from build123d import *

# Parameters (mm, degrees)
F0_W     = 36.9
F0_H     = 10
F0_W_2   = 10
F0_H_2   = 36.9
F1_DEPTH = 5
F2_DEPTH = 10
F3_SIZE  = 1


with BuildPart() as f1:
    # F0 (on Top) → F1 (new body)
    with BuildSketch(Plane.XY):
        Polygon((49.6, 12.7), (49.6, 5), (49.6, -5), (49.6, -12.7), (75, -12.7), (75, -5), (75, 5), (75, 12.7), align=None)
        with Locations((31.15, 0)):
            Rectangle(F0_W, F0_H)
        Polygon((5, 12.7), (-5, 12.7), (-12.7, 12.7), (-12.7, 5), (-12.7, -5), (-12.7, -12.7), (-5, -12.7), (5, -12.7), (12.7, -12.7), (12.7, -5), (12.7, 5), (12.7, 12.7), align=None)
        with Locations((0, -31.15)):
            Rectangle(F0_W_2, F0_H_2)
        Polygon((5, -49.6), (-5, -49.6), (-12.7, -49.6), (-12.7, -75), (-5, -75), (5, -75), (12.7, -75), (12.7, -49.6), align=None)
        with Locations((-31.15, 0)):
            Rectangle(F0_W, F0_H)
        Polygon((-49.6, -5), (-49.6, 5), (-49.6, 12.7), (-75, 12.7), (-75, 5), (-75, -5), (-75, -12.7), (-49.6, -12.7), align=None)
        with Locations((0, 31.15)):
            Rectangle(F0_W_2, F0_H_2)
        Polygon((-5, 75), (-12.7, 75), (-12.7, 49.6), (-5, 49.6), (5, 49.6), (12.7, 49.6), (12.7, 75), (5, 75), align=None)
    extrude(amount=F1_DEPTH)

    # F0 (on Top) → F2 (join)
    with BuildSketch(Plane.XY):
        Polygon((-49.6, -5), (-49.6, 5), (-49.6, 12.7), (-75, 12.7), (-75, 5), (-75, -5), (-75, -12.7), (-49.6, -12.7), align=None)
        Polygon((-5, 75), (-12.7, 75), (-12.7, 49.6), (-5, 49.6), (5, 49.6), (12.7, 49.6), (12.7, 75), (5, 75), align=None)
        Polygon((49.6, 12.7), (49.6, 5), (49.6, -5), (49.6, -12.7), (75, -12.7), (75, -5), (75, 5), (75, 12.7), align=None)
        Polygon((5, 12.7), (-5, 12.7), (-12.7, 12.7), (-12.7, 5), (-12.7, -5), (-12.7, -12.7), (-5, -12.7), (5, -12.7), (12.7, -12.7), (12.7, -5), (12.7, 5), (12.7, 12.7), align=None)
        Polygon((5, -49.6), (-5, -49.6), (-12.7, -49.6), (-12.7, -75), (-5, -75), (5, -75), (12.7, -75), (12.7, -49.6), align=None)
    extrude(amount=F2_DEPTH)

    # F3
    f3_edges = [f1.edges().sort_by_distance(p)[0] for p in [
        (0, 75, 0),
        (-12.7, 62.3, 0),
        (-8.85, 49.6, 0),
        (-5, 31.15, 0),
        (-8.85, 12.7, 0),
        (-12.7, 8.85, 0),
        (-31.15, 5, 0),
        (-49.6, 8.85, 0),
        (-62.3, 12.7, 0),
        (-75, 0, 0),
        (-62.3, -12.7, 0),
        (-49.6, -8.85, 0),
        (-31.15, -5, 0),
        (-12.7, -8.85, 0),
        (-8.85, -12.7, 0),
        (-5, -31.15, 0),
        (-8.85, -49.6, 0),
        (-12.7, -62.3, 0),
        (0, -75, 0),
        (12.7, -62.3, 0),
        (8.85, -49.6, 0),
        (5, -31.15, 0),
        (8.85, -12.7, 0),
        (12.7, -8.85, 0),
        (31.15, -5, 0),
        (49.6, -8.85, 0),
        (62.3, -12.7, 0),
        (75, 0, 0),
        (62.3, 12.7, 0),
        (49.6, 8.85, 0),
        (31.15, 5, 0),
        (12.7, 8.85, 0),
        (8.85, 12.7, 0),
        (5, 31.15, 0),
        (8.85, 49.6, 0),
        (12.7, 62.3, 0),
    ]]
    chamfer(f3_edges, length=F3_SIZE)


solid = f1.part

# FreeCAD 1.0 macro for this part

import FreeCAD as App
import Part
import Sketcher

V = App.Vector


def edges_at(feature, points):
    """Names of the edges that pass closest to the given points."""
    edges = feature.Shape.Edges
    near = lambda p: min(range(len(edges)), key=lambda i: edges[i].distToShape(Part.Vertex(*p))[0])
    return sorted({f"Edge{near(p) + 1}" for p in points})

doc = App.newDocument("Part")
params = doc.addObject("Spreadsheet::Sheet", "Params")
for row, (alias, value) in enumerate([
    ("sketch1_width", "36.9 mm"),
    ("sketch1_width2", "7.7 mm"),
    ("sketch1_width3", "25.4 mm"),
    ("pad1_length", "5 mm"),
    ("sketch2_width", "25.4 mm"),
    ("pad2_length", "10 mm"),
    ("chamfer_size", "1 mm"),
], start=1):
    params.set(f"A{row}", alias)
    params.set(f"B{row}", "=" + value)
    params.setAlias(f"B{row}", alias)

body = doc.addObject("PartDesign::Body", "Body")

# Sketch on XY plane
sketch1 = body.newObject("Sketcher::SketchObject", "Sketch")
sketch1.AttachmentSupport = (doc.getObject("XY_Plane"), [""])
sketch1.MapMode = "FlatFace"
sketch1.addGeometry(Part.LineSegment(V(49.6, 12.7, 0), V(49.6, 5, 0)), False)
sketch1.addGeometry(Part.LineSegment(V(49.6, 5, 0), V(12.7, 5, 0)), False)
sketch1.addGeometry(Part.LineSegment(V(12.7, 5, 0), V(12.7, 12.7, 0)), False)
sketch1.addGeometry(Part.LineSegment(V(12.7, 12.7, 0), V(5, 12.7, 0)), False)
sketch1.addGeometry(Part.LineSegment(V(5, 12.7, 0), V(5, 49.6, 0)), False)
sketch1.addGeometry(Part.LineSegment(V(5, 49.6, 0), V(12.7, 49.6, 0)), False)
sketch1.addGeometry(Part.LineSegment(V(12.7, 49.6, 0), V(12.7, 75, 0)), False)
sketch1.addGeometry(Part.LineSegment(V(12.7, 75, 0), V(-12.7, 75, 0)), False)
sketch1.addGeometry(Part.LineSegment(V(-12.7, 75, 0), V(-12.7, 49.6, 0)), False)
sketch1.addGeometry(Part.LineSegment(V(-12.7, 49.6, 0), V(-5, 49.6, 0)), False)
sketch1.addGeometry(Part.LineSegment(V(-5, 49.6, 0), V(-5, 12.7, 0)), False)
sketch1.addGeometry(Part.LineSegment(V(-5, 12.7, 0), V(-12.7, 12.7, 0)), False)
sketch1.addGeometry(Part.LineSegment(V(-12.7, 12.7, 0), V(-12.7, 5, 0)), False)
sketch1.addGeometry(Part.LineSegment(V(-12.7, 5, 0), V(-49.6, 5, 0)), False)
sketch1.addGeometry(Part.LineSegment(V(-49.6, 5, 0), V(-49.6, 12.7, 0)), False)
sketch1.addGeometry(Part.LineSegment(V(-49.6, 12.7, 0), V(-75, 12.7, 0)), False)
sketch1.addGeometry(Part.LineSegment(V(-75, 12.7, 0), V(-75, -12.7, 0)), False)
sketch1.addGeometry(Part.LineSegment(V(-75, -12.7, 0), V(-49.6, -12.7, 0)), False)
sketch1.addGeometry(Part.LineSegment(V(-49.6, -12.7, 0), V(-49.6, -5, 0)), False)
sketch1.addGeometry(Part.LineSegment(V(-49.6, -5, 0), V(-12.7, -5, 0)), False)
sketch1.addGeometry(Part.LineSegment(V(-12.7, -5, 0), V(-12.7, -12.7, 0)), False)
sketch1.addGeometry(Part.LineSegment(V(-12.7, -12.7, 0), V(-5, -12.7, 0)), False)
sketch1.addGeometry(Part.LineSegment(V(-5, -12.7, 0), V(-5, -49.6, 0)), False)
sketch1.addGeometry(Part.LineSegment(V(-5, -49.6, 0), V(-12.7, -49.6, 0)), False)
sketch1.addGeometry(Part.LineSegment(V(-12.7, -49.6, 0), V(-12.7, -75, 0)), False)
sketch1.addGeometry(Part.LineSegment(V(-12.7, -75, 0), V(12.7, -75, 0)), False)
sketch1.addGeometry(Part.LineSegment(V(12.7, -75, 0), V(12.7, -49.6, 0)), False)
sketch1.addGeometry(Part.LineSegment(V(12.7, -49.6, 0), V(5, -49.6, 0)), False)
sketch1.addGeometry(Part.LineSegment(V(5, -49.6, 0), V(5, -12.7, 0)), False)
sketch1.addGeometry(Part.LineSegment(V(5, -12.7, 0), V(12.7, -12.7, 0)), False)
sketch1.addGeometry(Part.LineSegment(V(12.7, -12.7, 0), V(12.7, -5, 0)), False)
sketch1.addGeometry(Part.LineSegment(V(12.7, -5, 0), V(49.6, -5, 0)), False)
sketch1.addGeometry(Part.LineSegment(V(49.6, -5, 0), V(49.6, -12.7, 0)), False)
sketch1.addGeometry(Part.LineSegment(V(49.6, -12.7, 0), V(75, -12.7, 0)), False)
sketch1.addGeometry(Part.LineSegment(V(75, -12.7, 0), V(75, 12.7, 0)), False)
sketch1.addGeometry(Part.LineSegment(V(75, 12.7, 0), V(49.6, 12.7, 0)), False)
sketch1.addConstraint(Sketcher.Constraint("Coincident", 0, 2, 1, 1))
sketch1.addConstraint(Sketcher.Constraint("Coincident", 1, 2, 2, 1))
sketch1.addConstraint(Sketcher.Constraint("Coincident", 2, 2, 3, 1))
sketch1.addConstraint(Sketcher.Constraint("Coincident", 3, 2, 4, 1))
sketch1.addConstraint(Sketcher.Constraint("Coincident", 4, 2, 5, 1))
sketch1.addConstraint(Sketcher.Constraint("Coincident", 5, 2, 6, 1))
sketch1.addConstraint(Sketcher.Constraint("Coincident", 6, 2, 7, 1))
sketch1.addConstraint(Sketcher.Constraint("Coincident", 7, 2, 8, 1))
sketch1.addConstraint(Sketcher.Constraint("Coincident", 8, 2, 9, 1))
sketch1.addConstraint(Sketcher.Constraint("Coincident", 9, 2, 10, 1))
sketch1.addConstraint(Sketcher.Constraint("Coincident", 10, 2, 11, 1))
sketch1.addConstraint(Sketcher.Constraint("Coincident", 11, 2, 12, 1))
sketch1.addConstraint(Sketcher.Constraint("Coincident", 12, 2, 13, 1))
sketch1.addConstraint(Sketcher.Constraint("Coincident", 13, 2, 14, 1))
sketch1.addConstraint(Sketcher.Constraint("Coincident", 14, 2, 15, 1))
sketch1.addConstraint(Sketcher.Constraint("Coincident", 15, 2, 16, 1))
sketch1.addConstraint(Sketcher.Constraint("Coincident", 16, 2, 17, 1))
sketch1.addConstraint(Sketcher.Constraint("Coincident", 17, 2, 18, 1))
sketch1.addConstraint(Sketcher.Constraint("Coincident", 18, 2, 19, 1))
sketch1.addConstraint(Sketcher.Constraint("Coincident", 19, 2, 20, 1))
sketch1.addConstraint(Sketcher.Constraint("Coincident", 20, 2, 21, 1))
sketch1.addConstraint(Sketcher.Constraint("Coincident", 21, 2, 22, 1))
sketch1.addConstraint(Sketcher.Constraint("Coincident", 22, 2, 23, 1))
sketch1.addConstraint(Sketcher.Constraint("Coincident", 23, 2, 24, 1))
sketch1.addConstraint(Sketcher.Constraint("Coincident", 24, 2, 25, 1))
sketch1.addConstraint(Sketcher.Constraint("Coincident", 25, 2, 26, 1))
sketch1.addConstraint(Sketcher.Constraint("Coincident", 26, 2, 27, 1))
sketch1.addConstraint(Sketcher.Constraint("Coincident", 27, 2, 28, 1))
sketch1.addConstraint(Sketcher.Constraint("Coincident", 28, 2, 29, 1))
sketch1.addConstraint(Sketcher.Constraint("Coincident", 29, 2, 30, 1))
sketch1.addConstraint(Sketcher.Constraint("Coincident", 30, 2, 31, 1))
sketch1.addConstraint(Sketcher.Constraint("Coincident", 31, 2, 32, 1))
sketch1.addConstraint(Sketcher.Constraint("Coincident", 32, 2, 33, 1))
sketch1.addConstraint(Sketcher.Constraint("Coincident", 33, 2, 34, 1))
sketch1.addConstraint(Sketcher.Constraint("Coincident", 34, 2, 35, 1))
sketch1.addConstraint(Sketcher.Constraint("Coincident", 35, 2, 0, 1))
sketch1.addConstraint(Sketcher.Constraint("Vertical", 0))
sketch1.addConstraint(Sketcher.Constraint("Horizontal", 1))
sketch1.addConstraint(Sketcher.Constraint("Vertical", 2))
sketch1.addConstraint(Sketcher.Constraint("Horizontal", 3))
sketch1.addConstraint(Sketcher.Constraint("Vertical", 4))
sketch1.addConstraint(Sketcher.Constraint("Horizontal", 5))
sketch1.addConstraint(Sketcher.Constraint("Vertical", 6))
sketch1.addConstraint(Sketcher.Constraint("Horizontal", 7))
sketch1.addConstraint(Sketcher.Constraint("Vertical", 8))
sketch1.addConstraint(Sketcher.Constraint("Horizontal", 9))
sketch1.addConstraint(Sketcher.Constraint("Vertical", 10))
sketch1.addConstraint(Sketcher.Constraint("Horizontal", 11))
sketch1.addConstraint(Sketcher.Constraint("Vertical", 12))
sketch1.addConstraint(Sketcher.Constraint("Horizontal", 13))
sketch1.addConstraint(Sketcher.Constraint("Vertical", 14))
sketch1.addConstraint(Sketcher.Constraint("Horizontal", 15))
sketch1.addConstraint(Sketcher.Constraint("Vertical", 16))
sketch1.addConstraint(Sketcher.Constraint("Horizontal", 17))
sketch1.addConstraint(Sketcher.Constraint("Vertical", 18))
sketch1.addConstraint(Sketcher.Constraint("Horizontal", 19))
sketch1.addConstraint(Sketcher.Constraint("Vertical", 20))
sketch1.addConstraint(Sketcher.Constraint("Horizontal", 21))
sketch1.addConstraint(Sketcher.Constraint("Vertical", 22))
sketch1.addConstraint(Sketcher.Constraint("Horizontal", 23))
sketch1.addConstraint(Sketcher.Constraint("Vertical", 24))
sketch1.addConstraint(Sketcher.Constraint("Horizontal", 25))
sketch1.addConstraint(Sketcher.Constraint("Vertical", 26))
sketch1.addConstraint(Sketcher.Constraint("Horizontal", 27))
sketch1.addConstraint(Sketcher.Constraint("Vertical", 28))
sketch1.addConstraint(Sketcher.Constraint("Horizontal", 29))
sketch1.addConstraint(Sketcher.Constraint("Vertical", 30))
sketch1.addConstraint(Sketcher.Constraint("Horizontal", 31))
sketch1.addConstraint(Sketcher.Constraint("Vertical", 32))
sketch1.addConstraint(Sketcher.Constraint("Horizontal", 33))
sketch1.addConstraint(Sketcher.Constraint("Vertical", 34))
sketch1.addConstraint(Sketcher.Constraint("Horizontal", 35))
sketch1.addConstraint(Sketcher.Constraint("Symmetric", 0, 2, 18, 2, -1, 1))
sketch1.addConstraint(Sketcher.Constraint("Symmetric", 2, 2, 20, 2, -1, 1))
sketch1.addConstraint(Sketcher.Constraint("Symmetric", 4, 2, 22, 2, -1, 1))
sketch1.addConstraint(Sketcher.Constraint("Symmetric", 6, 2, 24, 2, -1, 1))
sketch1.addConstraint(Sketcher.Constraint("Symmetric", 8, 2, 26, 2, -1, 1))
sketch1.addConstraint(Sketcher.Constraint("Symmetric", 10, 2, 28, 2, -1, 1))
sketch1.addConstraint(Sketcher.Constraint("Symmetric", 12, 2, 30, 2, -1, 1))
sketch1.addConstraint(Sketcher.Constraint("Symmetric", 14, 2, 32, 2, -1, 1))
sketch1.addConstraint(Sketcher.Constraint("Symmetric", 16, 2, 34, 2, -1, 1))
sketch1.addConstraint(Sketcher.Constraint("Symmetric", 5, 2, 8, 2, -2))
sketch1.addConstraint(Sketcher.Constraint("Symmetric", 3, 2, 10, 2, -2))
sketch1.addConstraint(Sketcher.Constraint("Symmetric", 1, 2, 12, 2, -2))
sketch1.addConstraint(Sketcher.Constraint("Symmetric", 17, 2, 32, 2, -2))
sketch1.addConstraint(Sketcher.Constraint("Horizontal", 11, 2, 14, 2))
sketch1.addConstraint(Sketcher.Constraint("Vertical", 2, 2, 5, 2))
sketch1.addConstraint(Sketcher.Constraint("Equal", 7, 15))
sketch1.addConstraint(Sketcher.Constraint("Equal", 29, 0))
sketch1.addConstraint(Sketcher.Constraint("Equal", 31, 4))
sketch1.addConstraint(Sketcher.Constraint("Equal", 35, 6))
sketch1.addConstraint(Sketcher.Constraint("Equal", 8, 16))
sketch1.addConstraint(Sketcher.Constraint("DistanceX", 1, 2, 1, 1, 36.9))
sketch1.addConstraint(Sketcher.Constraint("DistanceX", 3, 2, 3, 1, 7.7))
sketch1.addConstraint(Sketcher.Constraint("DistanceX", 7, 2, 7, 1, 25.4))
sketch1.setExpression("Constraints[92]", "Params.sketch1_width")
sketch1.setExpression("Constraints[93]", "Params.sketch1_width2")
sketch1.setExpression("Constraints[94]", "Params.sketch1_width3")
pad1 = body.newObject("PartDesign::Pad", "Pad")
pad1.Profile = sketch1
pad1.setExpression("Length", "Params.pad1_length")

# Sketch on XY plane
sketch2 = body.newObject("Sketcher::SketchObject", "Sketch001")
sketch2.AttachmentSupport = (doc.getObject("XY_Plane"), [""])
sketch2.MapMode = "FlatFace"
sketch2.addGeometry(Part.LineSegment(V(-49.6, 12.7, 0), V(-75, 12.7, 0)), False)
sketch2.addGeometry(Part.LineSegment(V(-75, 12.7, 0), V(-75, -12.7, 0)), False)
sketch2.addGeometry(Part.LineSegment(V(-75, -12.7, 0), V(-49.6, -12.7, 0)), False)
sketch2.addGeometry(Part.LineSegment(V(-49.6, -12.7, 0), V(-49.6, 12.7, 0)), False)
sketch2.addGeometry(Part.LineSegment(V(-12.7, 75, 0), V(-12.7, 49.6, 0)), False)
sketch2.addGeometry(Part.LineSegment(V(-12.7, 49.6, 0), V(12.7, 49.6, 0)), False)
sketch2.addGeometry(Part.LineSegment(V(12.7, 49.6, 0), V(12.7, 75, 0)), False)
sketch2.addGeometry(Part.LineSegment(V(12.7, 75, 0), V(-12.7, 75, 0)), False)
sketch2.addGeometry(Part.LineSegment(V(49.6, 12.7, 0), V(49.6, -12.7, 0)), False)
sketch2.addGeometry(Part.LineSegment(V(49.6, -12.7, 0), V(75, -12.7, 0)), False)
sketch2.addGeometry(Part.LineSegment(V(75, -12.7, 0), V(75, 12.7, 0)), False)
sketch2.addGeometry(Part.LineSegment(V(75, 12.7, 0), V(49.6, 12.7, 0)), False)
sketch2.addGeometry(Part.LineSegment(V(-12.7, 12.7, 0), V(-12.7, -12.7, 0)), False)
sketch2.addGeometry(Part.LineSegment(V(-12.7, -12.7, 0), V(12.7, -12.7, 0)), False)
sketch2.addGeometry(Part.LineSegment(V(12.7, -12.7, 0), V(12.7, 12.7, 0)), False)
sketch2.addGeometry(Part.LineSegment(V(12.7, 12.7, 0), V(-12.7, 12.7, 0)), False)
sketch2.addGeometry(Part.LineSegment(V(-12.7, -49.6, 0), V(-12.7, -75, 0)), False)
sketch2.addGeometry(Part.LineSegment(V(-12.7, -75, 0), V(12.7, -75, 0)), False)
sketch2.addGeometry(Part.LineSegment(V(12.7, -75, 0), V(12.7, -49.6, 0)), False)
sketch2.addGeometry(Part.LineSegment(V(12.7, -49.6, 0), V(-12.7, -49.6, 0)), False)
sketch2.addConstraint(Sketcher.Constraint("Coincident", 0, 2, 1, 1))
sketch2.addConstraint(Sketcher.Constraint("Coincident", 1, 2, 2, 1))
sketch2.addConstraint(Sketcher.Constraint("Coincident", 2, 2, 3, 1))
sketch2.addConstraint(Sketcher.Constraint("Coincident", 3, 2, 0, 1))
sketch2.addConstraint(Sketcher.Constraint("Coincident", 4, 2, 5, 1))
sketch2.addConstraint(Sketcher.Constraint("Coincident", 5, 2, 6, 1))
sketch2.addConstraint(Sketcher.Constraint("Coincident", 6, 2, 7, 1))
sketch2.addConstraint(Sketcher.Constraint("Coincident", 7, 2, 4, 1))
sketch2.addConstraint(Sketcher.Constraint("Coincident", 8, 2, 9, 1))
sketch2.addConstraint(Sketcher.Constraint("Coincident", 9, 2, 10, 1))
sketch2.addConstraint(Sketcher.Constraint("Coincident", 10, 2, 11, 1))
sketch2.addConstraint(Sketcher.Constraint("Coincident", 11, 2, 8, 1))
sketch2.addConstraint(Sketcher.Constraint("Coincident", 12, 2, 13, 1))
sketch2.addConstraint(Sketcher.Constraint("Coincident", 13, 2, 14, 1))
sketch2.addConstraint(Sketcher.Constraint("Coincident", 14, 2, 15, 1))
sketch2.addConstraint(Sketcher.Constraint("Coincident", 15, 2, 12, 1))
sketch2.addConstraint(Sketcher.Constraint("Coincident", 16, 2, 17, 1))
sketch2.addConstraint(Sketcher.Constraint("Coincident", 17, 2, 18, 1))
sketch2.addConstraint(Sketcher.Constraint("Coincident", 18, 2, 19, 1))
sketch2.addConstraint(Sketcher.Constraint("Coincident", 19, 2, 16, 1))
sketch2.addConstraint(Sketcher.Constraint("Horizontal", 0))
sketch2.addConstraint(Sketcher.Constraint("Vertical", 1))
sketch2.addConstraint(Sketcher.Constraint("Horizontal", 2))
sketch2.addConstraint(Sketcher.Constraint("Vertical", 3))
sketch2.addConstraint(Sketcher.Constraint("Vertical", 4))
sketch2.addConstraint(Sketcher.Constraint("Horizontal", 5))
sketch2.addConstraint(Sketcher.Constraint("Vertical", 6))
sketch2.addConstraint(Sketcher.Constraint("Horizontal", 7))
sketch2.addConstraint(Sketcher.Constraint("Vertical", 8))
sketch2.addConstraint(Sketcher.Constraint("Horizontal", 9))
sketch2.addConstraint(Sketcher.Constraint("Vertical", 10))
sketch2.addConstraint(Sketcher.Constraint("Horizontal", 11))
sketch2.addConstraint(Sketcher.Constraint("Vertical", 12))
sketch2.addConstraint(Sketcher.Constraint("Horizontal", 13))
sketch2.addConstraint(Sketcher.Constraint("Vertical", 14))
sketch2.addConstraint(Sketcher.Constraint("Horizontal", 15))
sketch2.addConstraint(Sketcher.Constraint("Vertical", 16))
sketch2.addConstraint(Sketcher.Constraint("Horizontal", 17))
sketch2.addConstraint(Sketcher.Constraint("Vertical", 18))
sketch2.addConstraint(Sketcher.Constraint("Horizontal", 19))
sketch2.addConstraint(Sketcher.Constraint("Symmetric", 3, 2, 8, 2, -1, 1))
sketch2.addConstraint(Sketcher.Constraint("Symmetric", 1, 2, 10, 2, -1, 1))
sketch2.addConstraint(Sketcher.Constraint("Symmetric", 12, 2, 14, 2, -1, 1))
sketch2.addConstraint(Sketcher.Constraint("Symmetric", 6, 2, 16, 2, -1, 1))
sketch2.addConstraint(Sketcher.Constraint("Symmetric", 4, 2, 18, 2, -1, 1))
sketch2.addConstraint(Sketcher.Constraint("Horizontal", 2, 2, 8, 2))
sketch2.addConstraint(Sketcher.Constraint("Horizontal", 9, 2, 12, 2))
sketch2.addConstraint(Sketcher.Constraint("Vertical", 7, 2, 12, 2))
sketch2.addConstraint(Sketcher.Constraint("Vertical", 6, 2, 13, 2))
sketch2.addConstraint(Sketcher.Constraint("Equal", 2, 5))
sketch2.addConstraint(Sketcher.Constraint("Equal", 19, 1))
sketch2.addConstraint(Sketcher.Constraint("Equal", 3, 4))
sketch2.addConstraint(Sketcher.Constraint("DistanceX", 0, 2, 0, 1, 25.4))
sketch2.addConstraint(Sketcher.Constraint("DistanceX", 0, 2, -1, 1, 75.0))
sketch2.addConstraint(Sketcher.Constraint("DistanceY", -1, 1, 6, 2, 75.0))
sketch2.setExpression("Constraints[52]", "Params.sketch2_width")
pad2 = body.newObject("PartDesign::Pad", "Pad001")
pad2.Profile = sketch2
pad2.setExpression("Length", "Params.pad2_length")
doc.recompute()

chamfer = body.newObject("PartDesign::Chamfer", "Chamfer")
chamfer.Base = (pad2, edges_at(pad2, [
    (0, 75, 0),
    (-12.7, 62.3, 0),
    (-8.85, 49.6, 0),
    (-5, 31.15, 0),
    (-8.85, 12.7, 0),
    (-12.7, 8.85, 0),
    (-31.15, 5, 0),
    (-49.6, 8.85, 0),
    (-62.3, 12.7, 0),
    (-75, 0, 0),
    (-62.3, -12.7, 0),
    (-49.6, -8.85, 0),
    (-31.15, -5, 0),
    (-12.7, -8.85, 0),
    (-8.85, -12.7, 0),
    (-5, -31.15, 0),
    (-8.85, -49.6, 0),
    (-12.7, -62.3, 0),
    (0, -75, 0),
    (12.7, -62.3, 0),
    (8.85, -49.6, 0),
    (5, -31.15, 0),
    (8.85, -12.7, 0),
    (12.7, -8.85, 0),
    (31.15, -5, 0),
    (49.6, -8.85, 0),
    (62.3, -12.7, 0),
    (75, 0, 0),
    (62.3, 12.7, 0),
    (49.6, 8.85, 0),
    (31.15, 5, 0),
    (12.7, 8.85, 0),
    (8.85, 12.7, 0),
    (5, 31.15, 0),
    (8.85, 49.6, 0),
    (12.7, 62.3, 0),
]))
chamfer.setExpression("Size", "Params.chamfer_size")

doc.recompute()
